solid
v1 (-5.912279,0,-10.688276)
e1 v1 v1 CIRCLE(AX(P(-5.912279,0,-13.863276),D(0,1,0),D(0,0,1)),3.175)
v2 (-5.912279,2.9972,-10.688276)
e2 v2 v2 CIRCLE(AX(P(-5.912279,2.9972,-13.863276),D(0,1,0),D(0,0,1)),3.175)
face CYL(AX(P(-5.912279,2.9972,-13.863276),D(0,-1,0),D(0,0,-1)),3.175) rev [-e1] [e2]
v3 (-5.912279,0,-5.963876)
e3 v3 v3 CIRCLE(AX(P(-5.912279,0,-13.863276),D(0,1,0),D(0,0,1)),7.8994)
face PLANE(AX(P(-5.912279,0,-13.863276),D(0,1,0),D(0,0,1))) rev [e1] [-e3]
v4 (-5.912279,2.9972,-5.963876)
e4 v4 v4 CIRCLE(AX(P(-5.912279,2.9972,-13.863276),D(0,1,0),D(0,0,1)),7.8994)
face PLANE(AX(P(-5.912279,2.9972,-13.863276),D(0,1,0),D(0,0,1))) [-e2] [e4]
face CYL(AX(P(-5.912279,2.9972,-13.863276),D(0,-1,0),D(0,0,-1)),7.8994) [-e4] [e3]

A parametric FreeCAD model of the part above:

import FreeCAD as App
import Part
import Sketcher
Q = App.Units.Quantity

doc = App.newDocument("Part")
params = doc.addObject("Spreadsheet::Sheet", "Params")
for row, (alias, value) in enumerate([
    ("sketch1_diameter", "0.25 in"),
    ("sketch1_diameter2", "0.622 in"),
    ("pad1_length", "0.118 in"),
], start=1):
    params.set(f"A{row}", alias)
    params.set(f"B{row}", "=" + value)
    params.setAlias(f"B{row}", alias)

body = doc.addObject("PartDesign::Body", "Body")

# Sketch on XZ plane
sketch1 = doc.addObject("Sketcher::SketchObject", "Sketch")
body.addObject(sketch1)
sketch1.AttachmentSupport = (doc.XZ_Plane, [""])
sketch1.MapMode = "FlatFace"
sketch1.addGeometry(Part.Circle(App.Vector(-5.9, -13.9, 0), App.Vector(0, 0, 1), 7.9), False)
sketch1.addGeometry(Part.Circle(App.Vector(-5.9, -13.9, 0), App.Vector(0, 0, 1), 3.2), False)
sketch1.addConstraint(Sketcher.Constraint("Coincident", 1, 3, 0, 3))
sketch1.addConstraint(Sketcher.Constraint("Diameter", 1, Q("0.25 in")))
sketch1.addConstraint(Sketcher.Constraint("Diameter", 0, Q("0.622 in")))
sketch1.addConstraint(Sketcher.Constraint("DistanceX", 0, 3, -1, 1, Q("5.912279 mm")))
sketch1.addConstraint(Sketcher.Constraint("DistanceY", 0, 3, -1, 1, Q("13.863276 mm")))
sketch1.setExpression("Constraints[1]", "Params.sketch1_diameter")
sketch1.setExpression("Constraints[2]", "Params.sketch1_diameter2")
pad1 = doc.addObject("PartDesign::Pad", "Pad")
body.addObject(pad1)
pad1.Profile = sketch1
pad1.setExpression("Length", "Params.pad1_length")
pad1.Reversed = True

doc.recompute()
